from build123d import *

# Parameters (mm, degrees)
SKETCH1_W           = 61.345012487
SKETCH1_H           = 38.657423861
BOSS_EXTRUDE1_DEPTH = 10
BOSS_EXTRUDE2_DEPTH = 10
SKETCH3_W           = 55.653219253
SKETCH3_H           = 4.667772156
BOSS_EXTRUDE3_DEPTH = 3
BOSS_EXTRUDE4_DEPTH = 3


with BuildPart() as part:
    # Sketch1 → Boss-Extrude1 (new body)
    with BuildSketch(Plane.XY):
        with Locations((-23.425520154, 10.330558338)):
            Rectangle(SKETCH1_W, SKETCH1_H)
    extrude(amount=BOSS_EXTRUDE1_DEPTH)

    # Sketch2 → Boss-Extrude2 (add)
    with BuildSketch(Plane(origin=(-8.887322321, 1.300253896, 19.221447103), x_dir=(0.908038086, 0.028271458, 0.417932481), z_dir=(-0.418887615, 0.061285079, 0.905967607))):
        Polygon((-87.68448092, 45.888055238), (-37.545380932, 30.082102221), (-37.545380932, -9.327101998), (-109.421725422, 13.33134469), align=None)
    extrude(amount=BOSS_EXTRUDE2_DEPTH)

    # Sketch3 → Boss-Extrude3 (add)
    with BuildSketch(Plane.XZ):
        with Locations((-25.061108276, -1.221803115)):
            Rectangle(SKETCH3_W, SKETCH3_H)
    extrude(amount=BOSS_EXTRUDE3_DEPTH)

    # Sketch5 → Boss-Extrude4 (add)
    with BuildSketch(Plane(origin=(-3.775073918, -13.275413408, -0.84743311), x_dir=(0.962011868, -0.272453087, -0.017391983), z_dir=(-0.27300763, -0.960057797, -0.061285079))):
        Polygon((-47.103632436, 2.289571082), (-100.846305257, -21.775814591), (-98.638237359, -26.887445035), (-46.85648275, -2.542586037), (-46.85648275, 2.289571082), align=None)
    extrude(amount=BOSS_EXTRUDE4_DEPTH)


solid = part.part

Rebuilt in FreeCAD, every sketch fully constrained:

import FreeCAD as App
import Part
import Sketcher

V = App.Vector
Q = App.Units.Quantity


def add_polygon(sketch, points):
    """Adds a closed chain of lines whose ends are joined by coincident constraints."""
    first, n = sketch.GeometryCount, len(points)
    for a, b in zip(points, points[1:] + points[:1]):
        sketch.addGeometry(Part.LineSegment(App.Vector(*a, 0), App.Vector(*b, 0)), False)
    for i in range(n):
        sketch.addConstraint(Sketcher.Constraint("Coincident", first + i, 2, first + (i + 1) % n, 1))

doc = App.newDocument("Part")
body = doc.addObject("PartDesign::Body", "Body")

sketch1 = body.newObject("Sketcher::SketchObject", "Sketch")
sketch1.AttachmentSupport = (doc.getObject("XY_Plane"), [""])
sketch1.MapMode = "FlatFace"
add_polygon(sketch1, [(-54.098026, 29.65927), (-54.098026, -8.998154), (7.246986, -8.998154), (7.246986, 29.65927)])
sketch1.addConstraint([
    Sketcher.Constraint("Vertical", 0),
    Sketcher.Constraint("Horizontal", 1),
    Sketcher.Constraint("Vertical", 2),
    Sketcher.Constraint("Horizontal", 3),
    Sketcher.Constraint("DistanceX", 1, 1, 1, 2, Q("61.345012 mm")),
    Sketcher.Constraint("DistanceY", 0, 2, 0, 1, Q("38.657424 mm")),
    Sketcher.Constraint("DistanceY", -1, 1, 2, 2, Q("29.65927 mm")),
    Sketcher.Constraint("DistanceX", 0, 2, -1, 1, Q("54.098026 mm")),
])
pad1 = body.newObject("PartDesign::Pad", "Pad")
pad1.Profile = sketch1
pad1.Length = 10

sketch2 = body.newObject("Sketcher::SketchObject", "Sketch001")
sketch2.Placement = App.Placement(V(-8.887322, 1.300254, 19.221447), App.Rotation(V(0.908038086, 0.028271458, 0.417932481), V(0, 0.997719832, -0.067491749), V(-0.418887615, 0.061285079, 0.905967607), "ZXY"))
add_polygon(sketch2, [(-37.545381, 30.082102), (-87.684481, 45.888055), (-109.421725, 13.331345), (-37.545381, -9.327102)])
sketch2.addConstraint([
    Sketcher.Constraint("Vertical", 3),
    Sketcher.Constraint("Parallel", 0, 2),
    Sketcher.Constraint("DistanceY", 2, 2, -1, 1, Q("9.327102 mm")),
    Sketcher.Constraint("DistanceX", 0, 2, 2, 2, Q("50.1391 mm")),
    Sketcher.Constraint("Distance", 0, Q("52.571451 mm")),
    Sketcher.Constraint("DistanceY", 3, 1, 3, 2, Q("39.409204 mm")),
    Sketcher.Constraint("DistanceX", 0, 2, -1, 1, Q("87.684481 mm")),
    Sketcher.Constraint("DistanceY", 1, 2, 0, 2, Q("32.556711 mm")),
])
pad2 = body.newObject("PartDesign::Pad", "Pad001")
pad2.Profile = sketch2
pad2.Length = 10

sketch3 = body.newObject("Sketcher::SketchObject", "Sketch002")
sketch3.AttachmentSupport = (doc.getObject("XZ_Plane"), [""])
sketch3.MapMode = "FlatFace"
add_polygon(sketch3, [(-52.887718, 1.112083), (-52.887718, -3.555689), (2.765501, -3.555689), (2.765501, 1.112083)])
sketch3.addConstraint([
    Sketcher.Constraint("Vertical", 0),
    Sketcher.Constraint("Horizontal", 1),
    Sketcher.Constraint("Vertical", 2),
    Sketcher.Constraint("Horizontal", 3),
    Sketcher.Constraint("DistanceX", 1, 1, 1, 2, Q("55.653219 mm")),
    Sketcher.Constraint("DistanceX", -1, 1, 1, 2, Q("2.765501 mm")),
    Sketcher.Constraint("DistanceY", 0, 2, 0, 1, Q("4.667772 mm")),
    Sketcher.Constraint("DistanceY", 0, 2, -1, 1, Q("3.555689 mm")),
])
pad3 = body.newObject("PartDesign::Pad", "Pad002")
pad3.Profile = sketch3
pad3.Length = 3

sketch4 = body.newObject("Sketcher::SketchObject", "Sketch003")
sketch4.Placement = App.Placement(V(-3.775074, -13.275413, -0.847433), App.Rotation(V(0.962011868, -0.272453088, -0.017391983), V(0, -0.063705117, 0.997968767), V(-0.27300763, -0.960057797, -0.061285079), "ZXY"))
add_polygon(sketch4, [(-47.103632, 2.289571), (-100.846305, -21.775815), (-98.638237, -26.887445), (-46.856483, -2.542586), (-46.856483, 2.289571)])
sketch4.addConstraint([
    Sketcher.Constraint("Vertical", 3),
    Sketcher.Constraint("Horizontal", 4),
    Sketcher.Constraint("DistanceX", 4, 2, 4, 1, Q("0.24715 mm")),
    Sketcher.Constraint("DistanceY", 3, 1, 3, 2, Q("4.832157 mm")),
    Sketcher.Constraint("DistanceY", -1, 1, 3, 2, Q("2.289571 mm")),
    Sketcher.Constraint("DistanceY", 1, 2, 0, 2, Q("5.11163 mm")),
    Sketcher.Constraint("DistanceY", 1, 2, 2, 2, Q("24.344859 mm")),
    Sketcher.Constraint("Distance", 0, Q("58.884783 mm")),
    Sketcher.Constraint("Distance", 1, Q("5.568153 mm")),
    Sketcher.Constraint("DistanceX", 0, 2, -1, 1, Q("100.846305 mm")),
])
pad4 = body.newObject("PartDesign::Pad", "Pad003")
pad4.Profile = sketch4
pad4.Length = 3

doc.recompute()
